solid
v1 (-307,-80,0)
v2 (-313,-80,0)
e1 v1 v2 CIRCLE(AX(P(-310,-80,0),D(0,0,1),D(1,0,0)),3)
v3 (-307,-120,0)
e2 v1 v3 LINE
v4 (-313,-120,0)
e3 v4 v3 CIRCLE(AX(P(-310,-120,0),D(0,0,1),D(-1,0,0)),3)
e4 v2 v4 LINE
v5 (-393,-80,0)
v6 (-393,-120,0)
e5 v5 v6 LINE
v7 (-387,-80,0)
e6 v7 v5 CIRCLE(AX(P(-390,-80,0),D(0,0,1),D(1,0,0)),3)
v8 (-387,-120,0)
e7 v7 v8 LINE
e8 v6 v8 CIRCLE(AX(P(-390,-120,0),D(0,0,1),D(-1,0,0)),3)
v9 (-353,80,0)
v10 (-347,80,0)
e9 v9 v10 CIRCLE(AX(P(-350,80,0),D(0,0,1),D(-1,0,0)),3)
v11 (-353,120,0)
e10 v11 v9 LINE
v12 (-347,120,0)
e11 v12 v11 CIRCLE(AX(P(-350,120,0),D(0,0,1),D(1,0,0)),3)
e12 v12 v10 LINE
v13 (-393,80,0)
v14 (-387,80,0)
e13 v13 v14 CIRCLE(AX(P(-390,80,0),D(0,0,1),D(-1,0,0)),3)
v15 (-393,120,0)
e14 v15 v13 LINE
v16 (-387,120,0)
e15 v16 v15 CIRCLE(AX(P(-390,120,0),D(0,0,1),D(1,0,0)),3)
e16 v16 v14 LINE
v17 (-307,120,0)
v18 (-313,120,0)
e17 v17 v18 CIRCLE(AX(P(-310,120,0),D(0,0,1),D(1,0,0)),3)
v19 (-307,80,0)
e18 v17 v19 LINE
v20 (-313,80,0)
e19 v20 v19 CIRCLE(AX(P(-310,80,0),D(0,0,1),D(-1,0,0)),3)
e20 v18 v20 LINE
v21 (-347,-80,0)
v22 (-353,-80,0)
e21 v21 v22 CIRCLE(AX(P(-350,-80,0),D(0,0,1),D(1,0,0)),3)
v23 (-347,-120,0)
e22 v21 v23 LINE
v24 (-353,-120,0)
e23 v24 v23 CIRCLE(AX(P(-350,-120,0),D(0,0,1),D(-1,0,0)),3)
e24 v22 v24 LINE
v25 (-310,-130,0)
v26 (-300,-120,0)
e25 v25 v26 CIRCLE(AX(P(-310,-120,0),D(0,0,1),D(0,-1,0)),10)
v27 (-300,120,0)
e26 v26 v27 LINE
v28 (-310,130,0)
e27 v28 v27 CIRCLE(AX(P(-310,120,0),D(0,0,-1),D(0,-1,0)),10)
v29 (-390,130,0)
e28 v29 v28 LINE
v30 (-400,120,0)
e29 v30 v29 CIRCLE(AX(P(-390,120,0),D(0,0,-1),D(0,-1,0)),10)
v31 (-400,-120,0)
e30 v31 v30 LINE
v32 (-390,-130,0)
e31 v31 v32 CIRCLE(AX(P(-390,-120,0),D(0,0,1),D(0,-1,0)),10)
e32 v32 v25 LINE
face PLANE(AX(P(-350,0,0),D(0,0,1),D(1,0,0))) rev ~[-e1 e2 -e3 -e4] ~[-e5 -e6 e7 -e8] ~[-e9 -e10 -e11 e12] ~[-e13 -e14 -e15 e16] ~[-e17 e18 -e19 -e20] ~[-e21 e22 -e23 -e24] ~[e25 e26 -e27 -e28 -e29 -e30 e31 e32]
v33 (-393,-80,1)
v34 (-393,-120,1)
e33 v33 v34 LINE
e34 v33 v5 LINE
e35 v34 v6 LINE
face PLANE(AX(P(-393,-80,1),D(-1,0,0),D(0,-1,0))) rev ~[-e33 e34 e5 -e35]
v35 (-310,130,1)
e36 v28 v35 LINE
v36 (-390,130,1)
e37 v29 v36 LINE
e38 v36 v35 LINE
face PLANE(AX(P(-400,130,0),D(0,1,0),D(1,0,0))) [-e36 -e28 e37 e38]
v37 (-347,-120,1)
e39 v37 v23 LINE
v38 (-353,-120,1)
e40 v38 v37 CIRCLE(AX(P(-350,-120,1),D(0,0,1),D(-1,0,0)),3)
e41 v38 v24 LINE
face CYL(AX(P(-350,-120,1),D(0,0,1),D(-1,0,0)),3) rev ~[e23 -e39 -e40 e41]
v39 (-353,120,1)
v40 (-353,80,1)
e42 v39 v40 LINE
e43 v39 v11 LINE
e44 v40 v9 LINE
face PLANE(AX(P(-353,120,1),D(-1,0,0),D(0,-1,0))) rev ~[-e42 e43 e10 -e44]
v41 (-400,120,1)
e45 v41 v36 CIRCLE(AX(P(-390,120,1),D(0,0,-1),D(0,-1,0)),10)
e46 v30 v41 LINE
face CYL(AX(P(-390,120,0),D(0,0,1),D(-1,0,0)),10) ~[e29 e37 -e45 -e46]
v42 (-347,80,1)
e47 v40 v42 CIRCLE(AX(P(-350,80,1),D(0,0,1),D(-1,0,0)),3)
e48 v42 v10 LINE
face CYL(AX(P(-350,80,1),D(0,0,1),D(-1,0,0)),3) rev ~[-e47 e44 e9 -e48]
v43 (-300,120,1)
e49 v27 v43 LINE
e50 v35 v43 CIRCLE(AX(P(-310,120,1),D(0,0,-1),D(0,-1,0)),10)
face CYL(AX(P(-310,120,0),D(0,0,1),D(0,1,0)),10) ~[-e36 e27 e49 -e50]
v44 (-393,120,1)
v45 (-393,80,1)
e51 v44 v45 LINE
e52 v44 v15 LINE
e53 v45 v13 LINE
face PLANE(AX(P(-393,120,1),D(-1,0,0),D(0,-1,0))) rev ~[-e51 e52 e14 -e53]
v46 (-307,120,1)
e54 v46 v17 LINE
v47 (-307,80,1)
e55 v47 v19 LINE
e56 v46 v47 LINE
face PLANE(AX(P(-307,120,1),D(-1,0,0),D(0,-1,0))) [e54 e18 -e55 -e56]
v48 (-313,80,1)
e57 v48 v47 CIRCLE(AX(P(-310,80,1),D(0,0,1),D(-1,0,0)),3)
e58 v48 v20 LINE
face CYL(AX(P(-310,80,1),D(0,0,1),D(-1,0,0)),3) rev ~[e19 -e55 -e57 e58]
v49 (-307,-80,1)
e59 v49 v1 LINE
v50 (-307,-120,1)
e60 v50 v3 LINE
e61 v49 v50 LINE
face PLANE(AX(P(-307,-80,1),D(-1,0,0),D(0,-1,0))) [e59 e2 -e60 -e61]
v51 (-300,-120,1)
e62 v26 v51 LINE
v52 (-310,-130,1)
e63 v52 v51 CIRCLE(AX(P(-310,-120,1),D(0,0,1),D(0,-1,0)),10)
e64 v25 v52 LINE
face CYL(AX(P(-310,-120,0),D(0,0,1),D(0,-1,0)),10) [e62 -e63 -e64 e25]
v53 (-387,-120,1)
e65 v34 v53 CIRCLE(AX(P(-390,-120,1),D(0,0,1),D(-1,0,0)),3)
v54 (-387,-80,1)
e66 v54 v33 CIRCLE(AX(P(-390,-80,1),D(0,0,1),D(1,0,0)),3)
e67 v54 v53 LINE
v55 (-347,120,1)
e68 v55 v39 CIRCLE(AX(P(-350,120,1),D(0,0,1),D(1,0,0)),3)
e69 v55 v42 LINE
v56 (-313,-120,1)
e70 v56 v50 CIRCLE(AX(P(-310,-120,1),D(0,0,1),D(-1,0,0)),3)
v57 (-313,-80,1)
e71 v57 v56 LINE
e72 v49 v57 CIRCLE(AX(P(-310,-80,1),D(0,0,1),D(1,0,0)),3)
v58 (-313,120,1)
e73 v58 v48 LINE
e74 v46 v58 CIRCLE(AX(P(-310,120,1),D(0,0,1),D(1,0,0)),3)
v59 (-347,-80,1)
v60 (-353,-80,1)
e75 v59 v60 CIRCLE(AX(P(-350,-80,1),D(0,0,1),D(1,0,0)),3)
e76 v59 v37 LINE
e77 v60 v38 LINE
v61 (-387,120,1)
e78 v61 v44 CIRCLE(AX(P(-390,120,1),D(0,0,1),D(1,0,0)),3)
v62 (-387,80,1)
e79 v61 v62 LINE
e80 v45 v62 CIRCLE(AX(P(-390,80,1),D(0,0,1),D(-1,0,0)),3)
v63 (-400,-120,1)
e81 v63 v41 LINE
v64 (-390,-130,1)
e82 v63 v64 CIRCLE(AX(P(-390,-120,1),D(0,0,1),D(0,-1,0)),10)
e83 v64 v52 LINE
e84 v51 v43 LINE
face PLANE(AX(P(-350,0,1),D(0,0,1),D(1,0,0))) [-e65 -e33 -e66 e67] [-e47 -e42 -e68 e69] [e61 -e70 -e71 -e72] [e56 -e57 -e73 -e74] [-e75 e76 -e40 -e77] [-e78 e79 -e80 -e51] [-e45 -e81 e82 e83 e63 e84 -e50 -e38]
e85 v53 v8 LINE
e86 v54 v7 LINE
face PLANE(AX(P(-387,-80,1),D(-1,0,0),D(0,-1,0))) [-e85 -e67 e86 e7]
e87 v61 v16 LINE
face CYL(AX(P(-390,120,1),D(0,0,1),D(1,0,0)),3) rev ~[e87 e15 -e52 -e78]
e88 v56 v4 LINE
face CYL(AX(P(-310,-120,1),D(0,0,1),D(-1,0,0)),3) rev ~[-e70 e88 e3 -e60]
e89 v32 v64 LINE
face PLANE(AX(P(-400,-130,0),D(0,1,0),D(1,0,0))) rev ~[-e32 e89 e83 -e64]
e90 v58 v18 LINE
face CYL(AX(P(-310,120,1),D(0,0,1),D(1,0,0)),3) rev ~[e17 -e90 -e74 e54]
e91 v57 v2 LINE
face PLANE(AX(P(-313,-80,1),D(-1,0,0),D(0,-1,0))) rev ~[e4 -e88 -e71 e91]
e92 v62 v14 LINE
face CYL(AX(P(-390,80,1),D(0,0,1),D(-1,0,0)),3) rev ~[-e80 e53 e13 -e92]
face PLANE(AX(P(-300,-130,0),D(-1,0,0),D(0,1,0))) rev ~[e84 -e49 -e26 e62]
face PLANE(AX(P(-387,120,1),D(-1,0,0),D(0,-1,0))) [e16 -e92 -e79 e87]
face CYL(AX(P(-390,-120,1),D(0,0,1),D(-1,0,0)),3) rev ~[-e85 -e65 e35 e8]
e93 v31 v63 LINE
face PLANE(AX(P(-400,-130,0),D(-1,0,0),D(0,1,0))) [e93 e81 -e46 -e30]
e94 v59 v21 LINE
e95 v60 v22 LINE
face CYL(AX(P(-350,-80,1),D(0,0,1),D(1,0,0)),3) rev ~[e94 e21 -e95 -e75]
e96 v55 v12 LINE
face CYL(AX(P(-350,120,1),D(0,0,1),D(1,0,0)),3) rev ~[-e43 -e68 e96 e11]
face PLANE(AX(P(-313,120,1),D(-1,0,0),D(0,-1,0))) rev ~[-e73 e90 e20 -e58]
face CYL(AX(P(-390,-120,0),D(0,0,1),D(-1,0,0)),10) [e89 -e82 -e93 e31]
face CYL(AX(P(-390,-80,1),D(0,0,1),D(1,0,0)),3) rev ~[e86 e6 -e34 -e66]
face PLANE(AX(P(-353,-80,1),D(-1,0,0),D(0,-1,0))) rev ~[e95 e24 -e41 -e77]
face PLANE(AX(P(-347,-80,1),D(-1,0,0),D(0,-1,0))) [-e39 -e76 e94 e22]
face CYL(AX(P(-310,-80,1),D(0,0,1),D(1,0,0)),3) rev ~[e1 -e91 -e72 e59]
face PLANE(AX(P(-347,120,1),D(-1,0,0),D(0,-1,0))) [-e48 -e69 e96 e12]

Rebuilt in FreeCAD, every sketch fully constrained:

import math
import FreeCAD as App
import Part
import Sketcher
Q = App.Units.Quantity


def edges_at(feature, points):
    """Names of the edges that pass closest to the given points."""
    edges = feature.Shape.Edges
    near = lambda p: min(range(len(edges)), key=lambda i: edges[i].distToShape(Part.Vertex(*p))[0])
    return sorted({f"Edge{near(p) + 1}" for p in points})

doc = App.newDocument("Part")
body = doc.addObject("PartDesign::Body", "Body")

# Sketch on XY plane
sketch1 = body.newObject("Sketcher::SketchObject", "Sketch")
sketch1.AttachmentSupport = (doc.getObject("XY_Plane"), [""])
sketch1.MapMode = "FlatFace"
sketch1.addGeometry([
    Part.LineSegment(App.Vector(-400, 130, 0), App.Vector(-400, -130, 0)),
    Part.LineSegment(App.Vector(-400, -130, 0), App.Vector(-300, -130, 0)),
    Part.LineSegment(App.Vector(-300, -130, 0), App.Vector(-300, 130, 0)),
    Part.LineSegment(App.Vector(-300, 130, 0), App.Vector(-400, 130, 0)),
], False)
sketch1.addConstraint([
    Sketcher.Constraint("Coincident", 0, 2, 1, 1),
    Sketcher.Constraint("Coincident", 1, 2, 2, 1),
    Sketcher.Constraint("Coincident", 2, 2, 3, 1),
    Sketcher.Constraint("Coincident", 3, 2, 0, 1),
    Sketcher.Constraint("Vertical", 0),
    Sketcher.Constraint("Horizontal", 1),
    Sketcher.Constraint("Vertical", 2),
    Sketcher.Constraint("Horizontal", 3),
    Sketcher.Constraint("DistanceX", 1, 1, 1, 2, Q("100 mm")),
    Sketcher.Constraint("DistanceY", 0, 2, 0, 1, Q("260 mm")),
    Sketcher.Constraint("DistanceX", 0, 2, -1, 1, Q("400 mm")),
    Sketcher.Constraint("DistanceY", 0, 2, -1, 1, Q("130 mm")),
])
pad1 = body.newObject("PartDesign::Pad", "Pad")
pad1.Profile = sketch1
pad1.Length = 1

# Sketch on XY plane
sketch2 = body.newObject("Sketcher::SketchObject", "Sketch001")
sketch2.AttachmentSupport = (doc.getObject("XY_Plane"), [""])
sketch2.MapMode = "FlatFace"
sketch2.AttachmentOffset = App.Placement(App.Vector(0, 0, 1), App.Rotation())
sketch2.addGeometry([
    Part.ArcOfCircle(Part.Circle(App.Vector(-350, -80, 0), App.Vector(0, 0, 1), 3), math.radians(0), math.radians(180)),  # 0
    Part.LineSegment(App.Vector(-353, -80, 0), App.Vector(-353, -120, 0)),  # 1
    Part.ArcOfCircle(Part.Circle(App.Vector(-350, -120, 0), App.Vector(0, 0, 1), 3), math.radians(180), math.radians(360)),  # 2
    Part.LineSegment(App.Vector(-347, -120, 0), App.Vector(-347, -80, 0)),  # 3
    Part.ArcOfCircle(Part.Circle(App.Vector(-390, -80, 0), App.Vector(0, 0, 1), 3), math.radians(0), math.radians(180)),  # 4
    Part.LineSegment(App.Vector(-393, -80, 0), App.Vector(-393, -120, 0)),  # 5
    Part.ArcOfCircle(Part.Circle(App.Vector(-390, -120, 0), App.Vector(0, 0, 1), 3), math.radians(180), math.radians(360)),  # 6
    Part.LineSegment(App.Vector(-387, -120, 0), App.Vector(-387, -80, 0)),  # 7
    Part.ArcOfCircle(Part.Circle(App.Vector(-310, -80, 0), App.Vector(0, 0, 1), 3), math.radians(0), math.radians(180)),  # 8
    Part.LineSegment(App.Vector(-313, -80, 0), App.Vector(-313, -120, 0)),  # 9
    Part.ArcOfCircle(Part.Circle(App.Vector(-310, -120, 0), App.Vector(0, 0, 1), 3), math.radians(180), math.radians(360)),  # 10
    Part.LineSegment(App.Vector(-307, -120, 0), App.Vector(-307, -80, 0)),  # 11
    Part.ArcOfCircle(Part.Circle(App.Vector(-350, 120, 0), App.Vector(0, 0, 1), 3), math.radians(0), math.radians(180)),  # 12
    Part.LineSegment(App.Vector(-353, 120, 0), App.Vector(-353, 80, 0)),  # 13
    Part.ArcOfCircle(Part.Circle(App.Vector(-350, 80, 0), App.Vector(0, 0, 1), 3), math.radians(180), math.radians(360)),  # 14
    Part.LineSegment(App.Vector(-347, 80, 0), App.Vector(-347, 120, 0)),  # 15
    Part.ArcOfCircle(Part.Circle(App.Vector(-390, 120, 0), App.Vector(0, 0, 1), 3), math.radians(0), math.radians(180)),  # 16
    Part.LineSegment(App.Vector(-393, 120, 0), App.Vector(-393, 80, 0)),  # 17
    Part.ArcOfCircle(Part.Circle(App.Vector(-390, 80, 0), App.Vector(0, 0, 1), 3), math.radians(180), math.radians(360)),  # 18
    Part.LineSegment(App.Vector(-387, 80, 0), App.Vector(-387, 120, 0)),  # 19
    Part.ArcOfCircle(Part.Circle(App.Vector(-310, 120, 0), App.Vector(0, 0, 1), 3), math.radians(0), math.radians(180)),  # 20
    Part.LineSegment(App.Vector(-313, 120, 0), App.Vector(-313, 80, 0)),  # 21
    Part.ArcOfCircle(Part.Circle(App.Vector(-310, 80, 0), App.Vector(0, 0, 1), 3), math.radians(180), math.radians(360)),  # 22
    Part.LineSegment(App.Vector(-307, 80, 0), App.Vector(-307, 120, 0)),  # 23
], False)
sketch2.addConstraint([
    Sketcher.Constraint("Tangent", 0, 2, 1, 1),
    Sketcher.Constraint("Tangent", 1, 2, 2, 1),
    Sketcher.Constraint("Tangent", 2, 2, 3, 1),
    Sketcher.Constraint("Tangent", 3, 2, 0, 1),
    Sketcher.Constraint("Tangent", 4, 2, 5, 1),
    Sketcher.Constraint("Tangent", 5, 2, 6, 1),
    Sketcher.Constraint("Tangent", 6, 2, 7, 1),
    Sketcher.Constraint("Tangent", 7, 2, 4, 1),
    Sketcher.Constraint("Tangent", 8, 2, 9, 1),
    Sketcher.Constraint("Tangent", 9, 2, 10, 1),
    Sketcher.Constraint("Tangent", 10, 2, 11, 1),
    Sketcher.Constraint("Tangent", 11, 2, 8, 1),
    Sketcher.Constraint("Tangent", 12, 2, 13, 1),
    Sketcher.Constraint("Tangent", 13, 2, 14, 1),
    Sketcher.Constraint("Tangent", 14, 2, 15, 1),
    Sketcher.Constraint("Tangent", 15, 2, 12, 1),
    Sketcher.Constraint("Tangent", 16, 2, 17, 1),
    Sketcher.Constraint("Tangent", 17, 2, 18, 1),
    Sketcher.Constraint("Tangent", 18, 2, 19, 1),
    Sketcher.Constraint("Tangent", 19, 2, 16, 1),
    Sketcher.Constraint("Tangent", 20, 2, 21, 1),
    Sketcher.Constraint("Tangent", 21, 2, 22, 1),
    Sketcher.Constraint("Tangent", 22, 2, 23, 1),
    Sketcher.Constraint("Tangent", 23, 2, 20, 1),
    Sketcher.Constraint("Vertical", 1),
    Sketcher.Constraint("Vertical", 3),
    Sketcher.Constraint("Vertical", 5),
    Sketcher.Constraint("Vertical", 7),
    Sketcher.Constraint("Vertical", 9),
    Sketcher.Constraint("Vertical", 11),
    Sketcher.Constraint("Vertical", 13),
    Sketcher.Constraint("Vertical", 15),
    Sketcher.Constraint("Vertical", 17),
    Sketcher.Constraint("Vertical", 19),
    Sketcher.Constraint("Vertical", 21),
    Sketcher.Constraint("Vertical", 23),
    Sketcher.Constraint("Equal", 2, 4),
    Sketcher.Constraint("Equal", 6, 8),
    Sketcher.Constraint("Equal", 10, 12),
    Sketcher.Constraint("Equal", 14, 16),
    Sketcher.Constraint("Equal", 18, 20),
    Sketcher.Constraint("Symmetric", 2, 3, 12, 3, -1),
    Sketcher.Constraint("Symmetric", 6, 3, 16, 3, -1),
    Sketcher.Constraint("Symmetric", 10, 3, 20, 3, -1),
    Sketcher.Constraint("Horizontal", 0, 3, 4, 3),
    Sketcher.Constraint("Horizontal", 2, 3, 6, 3),
    Sketcher.Constraint("Horizontal", 4, 3, 8, 3),
    Sketcher.Constraint("Horizontal", 6, 3, 10, 3),
    Sketcher.Constraint("Horizontal", 14, 3, 18, 3),
    Sketcher.Constraint("Horizontal", 18, 3, 22, 3),
    Sketcher.Constraint("Equal", 11, 13),
    Sketcher.Constraint("Radius", 0, Q("3 mm")),
    Sketcher.Constraint("DistanceY", 1, 2, 1, 1, Q("40 mm")),
    Sketcher.Constraint("DistanceX", 0, 3, -1, 1, Q("350 mm")),
    Sketcher.Constraint("DistanceY", 0, 3, -1, 1, Q("80 mm")),
    Sketcher.Constraint("DistanceX", 4, 3, -1, 1, Q("390 mm")),
    Sketcher.Constraint("DistanceX", 8, 3, -1, 1, Q("310 mm")),
])
pocket1 = body.newObject("PartDesign::Pocket", "Pocket")
pocket1.Profile = sketch2
pocket1.Length = 5
doc.recompute()

fillet = body.newObject("PartDesign::Fillet", "Fillet")
fillet.Base = (pocket1, edges_at(pocket1, [
    (-400, 130, 0.5),
    (-400, -130, 0.5),
    (-300, -130, 0.5),
    (-300, 130, 0.5),
]))
fillet.Radius = 10

doc.recompute()
